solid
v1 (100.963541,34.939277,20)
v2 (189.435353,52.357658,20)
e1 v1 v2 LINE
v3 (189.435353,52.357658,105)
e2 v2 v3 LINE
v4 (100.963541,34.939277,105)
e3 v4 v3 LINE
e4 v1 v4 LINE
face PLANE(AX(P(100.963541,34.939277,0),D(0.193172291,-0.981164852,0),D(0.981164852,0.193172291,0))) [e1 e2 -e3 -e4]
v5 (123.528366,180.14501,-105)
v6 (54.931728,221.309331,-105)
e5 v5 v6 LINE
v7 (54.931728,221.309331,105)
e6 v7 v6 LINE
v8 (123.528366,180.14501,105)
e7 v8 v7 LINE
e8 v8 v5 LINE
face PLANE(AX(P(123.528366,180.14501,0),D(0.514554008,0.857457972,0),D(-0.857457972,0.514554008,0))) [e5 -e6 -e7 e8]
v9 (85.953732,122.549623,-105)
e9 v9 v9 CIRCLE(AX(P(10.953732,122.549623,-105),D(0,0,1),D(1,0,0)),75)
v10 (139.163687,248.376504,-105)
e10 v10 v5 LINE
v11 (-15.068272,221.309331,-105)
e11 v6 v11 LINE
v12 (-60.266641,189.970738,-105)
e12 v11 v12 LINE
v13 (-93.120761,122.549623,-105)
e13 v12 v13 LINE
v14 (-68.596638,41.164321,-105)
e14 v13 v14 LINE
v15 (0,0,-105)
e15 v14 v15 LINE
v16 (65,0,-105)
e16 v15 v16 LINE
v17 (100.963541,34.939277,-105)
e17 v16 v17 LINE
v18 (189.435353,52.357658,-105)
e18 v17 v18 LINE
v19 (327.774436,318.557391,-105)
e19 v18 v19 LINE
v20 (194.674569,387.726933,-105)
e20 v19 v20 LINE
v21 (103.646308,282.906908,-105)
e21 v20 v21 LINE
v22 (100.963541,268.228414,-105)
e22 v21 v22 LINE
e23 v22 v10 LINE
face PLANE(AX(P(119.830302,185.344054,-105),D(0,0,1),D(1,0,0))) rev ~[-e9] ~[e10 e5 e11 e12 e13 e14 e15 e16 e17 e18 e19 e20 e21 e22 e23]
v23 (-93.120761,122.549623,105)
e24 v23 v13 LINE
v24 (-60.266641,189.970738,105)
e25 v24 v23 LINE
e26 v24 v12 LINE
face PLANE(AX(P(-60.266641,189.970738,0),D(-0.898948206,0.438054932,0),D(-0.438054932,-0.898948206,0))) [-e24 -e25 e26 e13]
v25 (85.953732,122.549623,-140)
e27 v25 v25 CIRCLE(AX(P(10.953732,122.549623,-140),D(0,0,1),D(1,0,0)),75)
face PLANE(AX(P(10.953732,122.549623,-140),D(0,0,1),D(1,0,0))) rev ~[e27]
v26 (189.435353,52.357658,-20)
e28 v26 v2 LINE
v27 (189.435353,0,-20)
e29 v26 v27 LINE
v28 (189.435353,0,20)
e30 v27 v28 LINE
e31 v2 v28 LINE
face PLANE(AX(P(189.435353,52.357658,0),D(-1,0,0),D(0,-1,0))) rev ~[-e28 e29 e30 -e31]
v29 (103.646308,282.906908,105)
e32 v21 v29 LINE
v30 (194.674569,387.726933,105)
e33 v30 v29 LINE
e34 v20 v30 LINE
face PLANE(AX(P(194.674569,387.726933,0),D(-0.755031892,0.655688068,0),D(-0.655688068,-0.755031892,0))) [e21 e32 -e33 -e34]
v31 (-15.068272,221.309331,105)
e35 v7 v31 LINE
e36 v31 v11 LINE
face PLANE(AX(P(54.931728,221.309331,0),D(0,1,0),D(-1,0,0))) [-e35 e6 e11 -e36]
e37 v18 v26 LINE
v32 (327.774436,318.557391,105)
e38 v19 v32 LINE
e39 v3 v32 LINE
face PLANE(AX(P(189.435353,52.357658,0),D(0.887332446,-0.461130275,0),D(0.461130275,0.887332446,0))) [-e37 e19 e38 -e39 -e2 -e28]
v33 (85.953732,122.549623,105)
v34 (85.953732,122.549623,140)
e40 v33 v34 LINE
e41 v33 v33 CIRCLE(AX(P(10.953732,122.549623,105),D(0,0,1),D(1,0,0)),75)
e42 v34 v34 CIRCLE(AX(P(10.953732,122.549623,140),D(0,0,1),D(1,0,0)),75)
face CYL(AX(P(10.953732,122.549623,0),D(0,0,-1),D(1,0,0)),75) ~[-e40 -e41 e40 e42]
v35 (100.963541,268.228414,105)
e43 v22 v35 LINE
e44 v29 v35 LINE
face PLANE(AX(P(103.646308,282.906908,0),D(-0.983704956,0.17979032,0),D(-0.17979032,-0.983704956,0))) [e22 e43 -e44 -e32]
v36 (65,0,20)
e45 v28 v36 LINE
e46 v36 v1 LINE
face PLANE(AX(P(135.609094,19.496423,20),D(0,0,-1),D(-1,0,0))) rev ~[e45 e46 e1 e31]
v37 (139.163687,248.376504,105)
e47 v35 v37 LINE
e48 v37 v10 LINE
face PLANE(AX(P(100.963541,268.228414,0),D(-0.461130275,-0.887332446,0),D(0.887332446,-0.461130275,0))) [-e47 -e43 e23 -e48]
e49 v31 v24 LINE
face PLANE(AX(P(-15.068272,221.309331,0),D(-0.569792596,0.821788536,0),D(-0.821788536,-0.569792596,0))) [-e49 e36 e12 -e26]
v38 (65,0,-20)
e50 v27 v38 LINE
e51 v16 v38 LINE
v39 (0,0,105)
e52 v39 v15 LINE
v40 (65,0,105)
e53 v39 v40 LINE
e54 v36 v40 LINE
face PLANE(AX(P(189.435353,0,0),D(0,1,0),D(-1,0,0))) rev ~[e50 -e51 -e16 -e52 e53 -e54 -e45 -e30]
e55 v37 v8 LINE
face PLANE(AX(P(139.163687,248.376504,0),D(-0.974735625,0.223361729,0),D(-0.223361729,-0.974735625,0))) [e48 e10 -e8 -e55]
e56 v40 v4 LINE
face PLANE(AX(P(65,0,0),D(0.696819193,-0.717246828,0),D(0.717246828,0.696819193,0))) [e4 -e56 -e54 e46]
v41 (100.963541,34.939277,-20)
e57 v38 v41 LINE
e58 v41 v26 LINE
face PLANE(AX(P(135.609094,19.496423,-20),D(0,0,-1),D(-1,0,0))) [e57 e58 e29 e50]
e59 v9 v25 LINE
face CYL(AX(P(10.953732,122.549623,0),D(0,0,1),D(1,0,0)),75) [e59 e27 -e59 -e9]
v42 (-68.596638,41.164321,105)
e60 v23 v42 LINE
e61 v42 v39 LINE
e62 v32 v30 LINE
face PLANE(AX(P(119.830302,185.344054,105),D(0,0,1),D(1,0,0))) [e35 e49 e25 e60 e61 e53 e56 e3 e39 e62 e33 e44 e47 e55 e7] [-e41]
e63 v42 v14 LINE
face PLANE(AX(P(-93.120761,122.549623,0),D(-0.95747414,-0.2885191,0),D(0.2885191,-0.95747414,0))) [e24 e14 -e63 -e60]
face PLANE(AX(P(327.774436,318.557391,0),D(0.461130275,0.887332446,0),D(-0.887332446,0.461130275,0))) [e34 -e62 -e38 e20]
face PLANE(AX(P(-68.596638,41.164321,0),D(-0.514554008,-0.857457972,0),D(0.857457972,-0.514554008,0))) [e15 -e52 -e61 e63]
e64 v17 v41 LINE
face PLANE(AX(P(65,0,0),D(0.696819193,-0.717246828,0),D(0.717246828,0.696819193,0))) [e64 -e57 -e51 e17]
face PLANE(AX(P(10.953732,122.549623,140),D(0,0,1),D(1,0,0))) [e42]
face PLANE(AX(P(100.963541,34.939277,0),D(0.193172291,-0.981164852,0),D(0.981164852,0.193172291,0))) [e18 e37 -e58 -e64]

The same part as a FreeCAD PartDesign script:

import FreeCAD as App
import Part
import Sketcher

V = App.Vector


def add_polygon(sketch, points):
    """Adds a closed chain of lines whose ends are joined by coincident constraints."""
    first, n = sketch.GeometryCount, len(points)
    for a, b in zip(points, points[1:] + points[:1]):
        sketch.addGeometry(Part.LineSegment(App.Vector(*a, 0), App.Vector(*b, 0)), False)
    for i in range(n):
        sketch.addConstraint(Sketcher.Constraint("Coincident", first + i, 2, first + (i + 1) % n, 1))

doc = App.newDocument("Part")
params = doc.addObject("Spreadsheet::Sheet", "Params")
for row, (alias, value) in enumerate([
    ("sketch1_diameter", "150 mm"),
    ("sketch1_width", "65 mm"),
    ("sketch1_width2", "70 mm"),
    ("sketch1_length", "300 mm"),
    ("sketch1_length2", "150 mm"),
    ("pad1_length", "105 mm"),
    ("pad1_length2", "105 mm"),
    ("pad2_length", "20 mm"),
    ("pad2_length2", "20 mm"),
    ("sketch3_diameter", "150 mm"),
    ("pad3_length", "140 mm"),
    ("pad3_length2", "140 mm"),
], start=1):
    params.set(f"A{row}", alias)
    params.set(f"B{row}", "=" + value)
    params.setAlias(f"B{row}", alias)

body = doc.addObject("PartDesign::Body", "Body")

# Sketch on XY plane
sketch1 = body.newObject("Sketcher::SketchObject", "Sketch")
sketch1.AttachmentSupport = (doc.getObject("XY_Plane"), [""])
sketch1.MapMode = "FlatFace"
add_polygon(sketch1, [(0, 0), (65, 0), (101, 35), (189, 52), (328, 319), (195, 388), (104, 283), (101, 268), (139, 248), (124, 180), (55, 221), (-15, 221), (-60, 190), (-93, 123), (-69, 41)])  # lines 0-14
sketch1.addGeometry(Part.Circle(V(11, 123, 0), V(0, 0, 1), 75), False)  # 15
sketch1.addConstraint([
    Sketcher.Constraint("Horizontal", 0),
    Sketcher.Constraint("Horizontal", 10),
    Sketcher.Constraint("Coincident", 14, 2, -1, 1),
    Sketcher.Constraint("Perpendicular", 3, 4),
    Sketcher.Constraint("Parallel", 4, 7),
    Sketcher.Constraint("Parallel", 9, 14),
    Sketcher.Constraint("Horizontal", 15, 3, 12, 2),
    Sketcher.Constraint("Vertical", 1, 2, 6, 2),
    Sketcher.Constraint("Equal", 9, 14),
    Sketcher.Constraint("Diameter", 15, 150.0),
    Sketcher.Constraint("DistanceX", 0, 1, 0, 2, 65.0),
    Sketcher.Constraint("DistanceX", 10, 2, 10, 1, 70.0),
    Sketcher.Constraint("Distance", 3, 300.0),
    Sketcher.Constraint("Distance", 4, 150.0),
    Sketcher.Constraint("Distance", 8, 70.0),
    Sketcher.Constraint("Distance", 9, 80.0),
    Sketcher.Constraint("Distance", 11, 55.0),
    Sketcher.Constraint("Distance", 12, 75.0),
    Sketcher.Constraint("Distance", 13, 85.0),
    Sketcher.Constraint("DistanceY", 13, 2, 12, 2, 81.385302),
    Sketcher.Constraint("Distance", 2, 90.170181),
    Sketcher.Constraint("DistanceX", -1, 1, 1, 2, 100.963541),
    Sketcher.Constraint("DistanceY", -1, 1, 3, 2, 318.557391),
    Sketcher.Constraint("DistanceX", -1, 1, 4, 2, 194.674569),
    Sketcher.Constraint("DistanceX", -1, 1, 5, 2, 103.646308),
    Sketcher.Constraint("DistanceY", -1, 1, 8, 2, 180.14501),
    Sketcher.Constraint("DistanceX", -1, 1, 9, 2, 54.931728),
    Sketcher.Constraint("DistanceY", -1, 1, 9, 2, 221.309331),
    Sketcher.Constraint("DistanceX", 15, 3, 1, 2, 90.009809),
    Sketcher.Constraint("DistanceX", 1, 2, 2, 2, 88.471812),
    Sketcher.Constraint("DistanceY", 2, 2, 5, 2, 230.54925),
    Sketcher.Constraint("DistanceY", 6, 2, 4, 2, 119.498519),
])
sketch1.setExpression("Constraints[24]", "Params.sketch1_diameter")
sketch1.setExpression("Constraints[25]", "Params.sketch1_width")
sketch1.setExpression("Constraints[26]", "Params.sketch1_width2")
sketch1.setExpression("Constraints[27]", "Params.sketch1_length")
sketch1.setExpression("Constraints[28]", "Params.sketch1_length2")
pad1 = body.newObject("PartDesign::Pad", "Pad")
pad1.Profile = sketch1
pad1.Type = "TwoLengths"
pad1.setExpression("Length", "Params.pad1_length")
pad1.setExpression("Length2", "Params.pad1_length2")

# Sketch on XY plane
sketch2 = body.newObject("Sketcher::SketchObject", "Sketch001")
sketch2.AttachmentSupport = (doc.getObject("XY_Plane"), [""])
sketch2.MapMode = "FlatFace"
add_polygon(sketch2, [(65, 0), (189, 0), (189, 52), (101, 35)])  # lines 0-3
sketch2.addConstraint([
    Sketcher.Constraint("Horizontal", 0),
    Sketcher.Constraint("Vertical", 1),
    Sketcher.Constraint("PointOnObject", 0, 2, -1),
    Sketcher.Constraint("DistanceX", -1, 1, 3, 2, 65.0),
    Sketcher.Constraint("Distance", 2, 90.170181),
    Sketcher.Constraint("DistanceX", 0, 1, 0, 2, 124.435353),
    Sketcher.Constraint("DistanceY", 1, 1, 1, 2, 52.357658),
    Sketcher.Constraint("DistanceX", -1, 1, 2, 2, 100.963541),
])
pad2 = body.newObject("PartDesign::Pad", "Pad001")
pad2.Profile = sketch2
pad2.Type = "TwoLengths"
pad2.setExpression("Length", "Params.pad2_length")
pad2.setExpression("Length2", "Params.pad2_length2")

# Sketch on XY plane
sketch3 = body.newObject("Sketcher::SketchObject", "Sketch002")
sketch3.AttachmentSupport = (doc.getObject("XY_Plane"), [""])
sketch3.MapMode = "FlatFace"
sketch3.addGeometry(Part.Circle(V(11, 123, 0), V(0, 0, 1), 75), False)
sketch3.addConstraint([
    Sketcher.Constraint("Diameter", 0, 150.0),
    Sketcher.Constraint("DistanceX", -1, 1, 0, 3, 10.953732),
    Sketcher.Constraint("DistanceY", -1, 1, 0, 3, 122.549623),
])
sketch3.setExpression("Constraints[0]", "Params.sketch3_diameter")
pad3 = body.newObject("PartDesign::Pad", "Pad002")
pad3.Profile = sketch3
pad3.Type = "TwoLengths"
pad3.setExpression("Length", "Params.pad3_length")
pad3.setExpression("Length2", "Params.pad3_length2")

doc.recompute()
